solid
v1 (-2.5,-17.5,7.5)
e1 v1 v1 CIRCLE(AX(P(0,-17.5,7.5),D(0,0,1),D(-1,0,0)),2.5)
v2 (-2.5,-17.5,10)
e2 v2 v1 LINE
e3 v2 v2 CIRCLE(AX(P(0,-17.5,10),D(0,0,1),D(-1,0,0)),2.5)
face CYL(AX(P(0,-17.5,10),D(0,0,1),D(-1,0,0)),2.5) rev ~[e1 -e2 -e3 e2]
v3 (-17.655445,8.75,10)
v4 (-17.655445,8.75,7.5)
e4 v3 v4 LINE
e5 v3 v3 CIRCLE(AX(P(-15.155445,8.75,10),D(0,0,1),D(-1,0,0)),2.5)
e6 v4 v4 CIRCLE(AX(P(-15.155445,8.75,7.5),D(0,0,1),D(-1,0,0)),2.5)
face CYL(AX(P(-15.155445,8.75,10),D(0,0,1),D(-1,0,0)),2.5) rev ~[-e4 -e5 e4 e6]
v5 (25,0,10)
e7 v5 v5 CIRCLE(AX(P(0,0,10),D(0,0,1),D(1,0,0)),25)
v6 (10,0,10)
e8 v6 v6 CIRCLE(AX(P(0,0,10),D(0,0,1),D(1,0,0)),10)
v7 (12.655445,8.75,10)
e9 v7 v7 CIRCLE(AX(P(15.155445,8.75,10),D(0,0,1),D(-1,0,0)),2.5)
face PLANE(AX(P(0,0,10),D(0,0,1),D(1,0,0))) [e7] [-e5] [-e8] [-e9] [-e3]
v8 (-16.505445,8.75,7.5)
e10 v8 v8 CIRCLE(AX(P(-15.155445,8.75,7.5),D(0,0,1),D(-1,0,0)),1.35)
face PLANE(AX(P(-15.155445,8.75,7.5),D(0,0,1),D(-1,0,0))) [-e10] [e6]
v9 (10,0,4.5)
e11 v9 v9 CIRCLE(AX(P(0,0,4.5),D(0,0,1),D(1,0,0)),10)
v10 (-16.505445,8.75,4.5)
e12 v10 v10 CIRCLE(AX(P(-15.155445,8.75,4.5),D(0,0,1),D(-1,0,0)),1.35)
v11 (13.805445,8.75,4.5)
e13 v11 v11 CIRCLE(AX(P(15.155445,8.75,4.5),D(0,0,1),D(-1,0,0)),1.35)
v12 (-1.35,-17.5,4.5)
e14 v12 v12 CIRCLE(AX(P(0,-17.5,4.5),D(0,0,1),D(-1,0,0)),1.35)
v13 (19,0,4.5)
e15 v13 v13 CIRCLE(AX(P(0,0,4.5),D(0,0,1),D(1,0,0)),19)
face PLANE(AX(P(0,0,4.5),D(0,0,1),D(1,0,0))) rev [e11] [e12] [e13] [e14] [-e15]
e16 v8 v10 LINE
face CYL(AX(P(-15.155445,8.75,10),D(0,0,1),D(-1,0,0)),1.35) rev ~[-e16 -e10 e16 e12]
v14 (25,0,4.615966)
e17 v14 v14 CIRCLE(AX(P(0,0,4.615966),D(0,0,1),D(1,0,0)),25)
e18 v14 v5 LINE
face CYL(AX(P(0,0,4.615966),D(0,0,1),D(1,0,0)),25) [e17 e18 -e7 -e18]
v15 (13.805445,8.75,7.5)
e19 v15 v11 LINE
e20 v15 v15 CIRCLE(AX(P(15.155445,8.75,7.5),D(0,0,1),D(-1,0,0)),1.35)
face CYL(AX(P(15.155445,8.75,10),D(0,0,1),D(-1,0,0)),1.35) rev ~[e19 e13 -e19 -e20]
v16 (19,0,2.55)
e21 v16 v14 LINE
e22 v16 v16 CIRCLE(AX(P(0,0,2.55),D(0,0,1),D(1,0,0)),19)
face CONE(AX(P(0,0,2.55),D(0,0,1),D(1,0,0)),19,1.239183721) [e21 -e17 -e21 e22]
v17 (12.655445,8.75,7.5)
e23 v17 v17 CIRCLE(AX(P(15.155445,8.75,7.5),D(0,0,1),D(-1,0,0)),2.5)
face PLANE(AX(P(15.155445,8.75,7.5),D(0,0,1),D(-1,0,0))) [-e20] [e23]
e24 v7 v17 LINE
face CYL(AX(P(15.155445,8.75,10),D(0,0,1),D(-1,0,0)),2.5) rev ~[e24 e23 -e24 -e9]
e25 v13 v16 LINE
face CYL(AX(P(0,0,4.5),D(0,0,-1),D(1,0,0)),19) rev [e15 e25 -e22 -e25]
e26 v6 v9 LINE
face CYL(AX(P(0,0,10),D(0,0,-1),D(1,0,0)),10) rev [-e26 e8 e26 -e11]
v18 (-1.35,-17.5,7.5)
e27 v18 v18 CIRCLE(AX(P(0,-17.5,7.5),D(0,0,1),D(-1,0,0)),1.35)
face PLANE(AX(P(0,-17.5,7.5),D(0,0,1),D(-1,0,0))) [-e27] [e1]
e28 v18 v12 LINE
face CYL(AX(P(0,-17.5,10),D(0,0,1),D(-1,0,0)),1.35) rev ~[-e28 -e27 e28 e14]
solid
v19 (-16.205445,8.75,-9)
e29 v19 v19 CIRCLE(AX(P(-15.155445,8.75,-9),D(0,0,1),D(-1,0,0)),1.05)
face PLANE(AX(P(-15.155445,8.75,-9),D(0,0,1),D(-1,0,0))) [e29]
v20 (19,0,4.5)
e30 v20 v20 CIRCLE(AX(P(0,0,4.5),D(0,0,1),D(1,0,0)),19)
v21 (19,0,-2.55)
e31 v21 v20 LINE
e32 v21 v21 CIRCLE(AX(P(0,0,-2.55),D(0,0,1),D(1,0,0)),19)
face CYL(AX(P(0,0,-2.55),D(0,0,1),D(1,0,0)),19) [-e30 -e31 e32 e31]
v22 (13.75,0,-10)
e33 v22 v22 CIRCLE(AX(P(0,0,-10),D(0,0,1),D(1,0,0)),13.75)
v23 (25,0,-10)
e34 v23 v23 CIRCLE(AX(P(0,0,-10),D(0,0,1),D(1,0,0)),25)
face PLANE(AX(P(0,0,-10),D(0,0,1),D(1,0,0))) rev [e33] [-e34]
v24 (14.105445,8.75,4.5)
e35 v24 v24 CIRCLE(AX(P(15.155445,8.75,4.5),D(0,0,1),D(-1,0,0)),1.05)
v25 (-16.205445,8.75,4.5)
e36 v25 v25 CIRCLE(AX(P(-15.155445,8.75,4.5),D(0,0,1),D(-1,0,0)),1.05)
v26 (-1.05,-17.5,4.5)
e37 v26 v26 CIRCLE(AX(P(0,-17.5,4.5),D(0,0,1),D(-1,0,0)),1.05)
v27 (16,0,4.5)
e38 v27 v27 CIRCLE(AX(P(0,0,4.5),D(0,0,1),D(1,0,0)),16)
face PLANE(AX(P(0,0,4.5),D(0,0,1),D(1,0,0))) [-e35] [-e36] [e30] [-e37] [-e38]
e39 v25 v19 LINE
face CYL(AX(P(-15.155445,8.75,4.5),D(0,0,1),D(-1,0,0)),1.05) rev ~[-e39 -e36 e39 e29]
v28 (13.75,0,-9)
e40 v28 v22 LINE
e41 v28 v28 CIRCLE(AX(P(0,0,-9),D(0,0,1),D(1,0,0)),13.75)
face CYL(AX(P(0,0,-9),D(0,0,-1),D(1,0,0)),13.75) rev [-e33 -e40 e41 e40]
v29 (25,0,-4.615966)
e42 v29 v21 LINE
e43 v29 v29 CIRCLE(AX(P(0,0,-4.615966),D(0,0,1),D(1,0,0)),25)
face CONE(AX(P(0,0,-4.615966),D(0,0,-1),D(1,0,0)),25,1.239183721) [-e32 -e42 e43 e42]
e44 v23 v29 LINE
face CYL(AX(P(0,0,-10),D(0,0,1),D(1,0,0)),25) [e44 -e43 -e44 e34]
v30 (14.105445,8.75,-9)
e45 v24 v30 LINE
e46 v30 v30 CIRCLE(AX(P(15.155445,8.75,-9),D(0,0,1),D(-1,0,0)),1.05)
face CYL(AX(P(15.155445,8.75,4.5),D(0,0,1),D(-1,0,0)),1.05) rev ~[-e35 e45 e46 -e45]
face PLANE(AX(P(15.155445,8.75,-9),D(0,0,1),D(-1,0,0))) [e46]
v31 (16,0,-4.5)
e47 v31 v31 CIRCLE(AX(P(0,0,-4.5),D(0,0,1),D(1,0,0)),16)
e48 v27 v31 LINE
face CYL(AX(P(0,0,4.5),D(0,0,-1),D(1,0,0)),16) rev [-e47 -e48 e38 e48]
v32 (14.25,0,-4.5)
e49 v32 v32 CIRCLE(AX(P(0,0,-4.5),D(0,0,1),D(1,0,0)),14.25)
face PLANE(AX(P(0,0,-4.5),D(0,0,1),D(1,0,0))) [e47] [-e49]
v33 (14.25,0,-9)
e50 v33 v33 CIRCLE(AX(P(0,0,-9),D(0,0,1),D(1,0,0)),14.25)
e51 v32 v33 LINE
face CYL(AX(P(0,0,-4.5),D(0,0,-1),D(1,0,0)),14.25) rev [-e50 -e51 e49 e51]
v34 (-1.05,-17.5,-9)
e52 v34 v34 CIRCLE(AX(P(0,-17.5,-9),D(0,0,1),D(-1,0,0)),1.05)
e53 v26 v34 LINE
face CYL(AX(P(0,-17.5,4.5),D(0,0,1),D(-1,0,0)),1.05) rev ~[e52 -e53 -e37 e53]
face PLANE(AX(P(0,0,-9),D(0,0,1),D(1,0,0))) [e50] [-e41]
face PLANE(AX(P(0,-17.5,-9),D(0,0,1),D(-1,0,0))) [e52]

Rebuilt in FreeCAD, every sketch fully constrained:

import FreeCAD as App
import Part
import Sketcher
from FreeCAD import Vector
Q = App.Units.Quantity


def add_polygon(sketch, points):
    """Adds a closed chain of lines whose ends are joined by coincident constraints."""
    first, n = sketch.GeometryCount, len(points)
    for a, b in zip(points, points[1:] + points[:1]):
        sketch.addGeometry(Part.LineSegment(App.Vector(*a, 0), App.Vector(*b, 0)), False)
    for i in range(n):
        sketch.addConstraint(Sketcher.Constraint("Coincident", first + i, 2, first + (i + 1) % n, 1))

doc = App.newDocument("Part")
body = doc.addObject("PartDesign::Body", "Body")

sketch1 = body.newObject("Sketcher::SketchObject", "Sketch")
sketch1.AttachmentSupport = (doc.getObject("XZ_Plane"), [""])
sketch1.MapMode = "FlatFace"
add_polygon(sketch1, [(13.75, -10), (25, -10), (25, -4.615966), (19, -2.55), (19, 4.5), (16, 4.5), (16, -4.5), (14.25, -4.5), (14.25, -9), (13.75, -9)])
sketch1.addConstraint([
    Sketcher.Constraint("Horizontal", 0),
    Sketcher.Constraint("Vertical", 1),
    Sketcher.Constraint("Vertical", 3),
    Sketcher.Constraint("Horizontal", 4),
    Sketcher.Constraint("Vertical", 5),
    Sketcher.Constraint("Horizontal", 6),
    Sketcher.Constraint("Vertical", 7),
    Sketcher.Constraint("Horizontal", 8),
    Sketcher.Constraint("Vertical", 9),
    Sketcher.Constraint("DistanceX", 4, 2, 4, 1, Q("3 mm")),
    Sketcher.Constraint("DistanceY", 5, 2, 5, 1, Q("9 mm")),
    Sketcher.Constraint("DistanceY", 9, 2, 9, 1, Q("1 mm")),
    Sketcher.Constraint("Angle", 2, Q("160.999997 deg")),
    Sketcher.Constraint("DistanceX", 8, 2, 8, 1, Q("0.5 mm")),
    Sketcher.Constraint("DistanceY", 7, 2, 7, 1, Q("4.5 mm")),
    Sketcher.Constraint("DistanceX", -1, 1, 0, 2, Q("25 mm")),
    Sketcher.Constraint("DistanceY", 0, 2, -1, 1, Q("10 mm")),
    Sketcher.Constraint("DistanceX", -1, 1, 2, 2, Q("19 mm")),
    Sketcher.Constraint("DistanceX", 0, 1, 0, 2, Q("11.25 mm")),
    Sketcher.Constraint("DistanceY", 3, 1, 3, 2, Q("7.05 mm")),
])
revolution = body.newObject("PartDesign::Revolution", "Revolution")
revolution.Profile = sketch1
revolution.ReferenceAxis = (sketch1, ["V_Axis"])
revolution.Angle = 360

sketch2 = body.newObject("Sketcher::SketchObject", "Sketch001")
sketch2.AttachmentSupport = (doc.getObject("XY_Plane"), [""])
sketch2.MapMode = "FlatFace"
sketch2.AttachmentOffset = App.Placement(Vector(0, 0, 4.5), App.Rotation())
sketch2.addGeometry([
    Part.Circle(Vector(0, -17.5, 0), Vector(0, 0, 1), 1.05),
    Part.Circle(Vector(15.155445, 8.75, 0), Vector(0, 0, 1), 1.05),
    Part.Circle(Vector(-15.155445, 8.75, 0), Vector(0, 0, 1), 1.05),
], False)
sketch2.addConstraint([
    Sketcher.Constraint("Equal", 0, 1),
    Sketcher.Constraint("Equal", 1, 2),
    Sketcher.Constraint("Symmetric", 1, 3, 2, 3, -2),
    Sketcher.Constraint("PointOnObject", 0, 3, -2),
    Sketcher.Constraint("Diameter", 0, Q("2.1 mm")),
    Sketcher.Constraint("DistanceY", 0, 3, -1, 1, Q("17.5 mm")),
    Sketcher.Constraint("DistanceY", -1, 1, 1, 3, Q("8.75 mm")),
    Sketcher.Constraint("DistanceX", 2, 3, 1, 3, Q("30.31089 mm")),
])
pocket1 = body.newObject("PartDesign::Pocket", "Pocket")
pocket1.Profile = sketch2
pocket1.Length = 13.5
body2 = doc.addObject("PartDesign::Body", "Body001")

sketch3 = body2.newObject("Sketcher::SketchObject", "Sketch002")
sketch3.AttachmentSupport = (doc.getObject("XZ_Plane001"), [""])
sketch3.MapMode = "FlatFace"
add_polygon(sketch3, [(19, 2.55), (25, 4.615966), (25, 10), (10, 10), (10, 4.5), (19, 4.5)])
sketch3.addConstraint([
    Sketcher.Constraint("Vertical", 1),
    Sketcher.Constraint("Horizontal", 2),
    Sketcher.Constraint("Vertical", 3),
    Sketcher.Constraint("Horizontal", 4),
    Sketcher.Constraint("Vertical", 5),
    Sketcher.Constraint("DistanceX", 2, 2, 2, 1, Q("15 mm")),
    Sketcher.Constraint("DistanceX", 4, 1, 4, 2, Q("9 mm")),
    Sketcher.Constraint("Angle", 0, Q("19.000003 deg")),
    Sketcher.Constraint("DistanceY", 3, 2, 3, 1, Q("5.5 mm")),
    Sketcher.Constraint("DistanceX", -1, 1, 0, 2, Q("25 mm")),
    Sketcher.Constraint("DistanceY", -1, 1, 1, 2, Q("10 mm")),
    Sketcher.Constraint("DistanceY", 5, 2, 5, 1, Q("1.95 mm")),
])
revolution2 = body2.newObject("PartDesign::Revolution", "Revolution001")
revolution2.Profile = sketch3
revolution2.ReferenceAxis = (sketch3, ["V_Axis"])
revolution2.Angle = 360

sketch4 = body2.newObject("Sketcher::SketchObject", "Sketch003")
sketch4.AttachmentSupport = (doc.getObject("XY_Plane001"), [""])
sketch4.MapMode = "FlatFace"
sketch4.AttachmentOffset = App.Placement(Vector(0, 0, 10), App.Rotation())
sketch4.addGeometry([
    Part.Circle(Vector(0, -17.5, 0), Vector(0, 0, 1), 1.35),
    Part.Circle(Vector(15.155445, 8.75, 0), Vector(0, 0, 1), 1.35),
    Part.Circle(Vector(-15.155445, 8.75, 0), Vector(0, 0, 1), 1.35),
], False)
sketch4.addConstraint([
    Sketcher.Constraint("Equal", 0, 1),
    Sketcher.Constraint("Equal", 1, 2),
    Sketcher.Constraint("Symmetric", 1, 3, 2, 3, -2),
    Sketcher.Constraint("PointOnObject", 0, 3, -2),
    Sketcher.Constraint("Diameter", 0, Q("2.7 mm")),
    Sketcher.Constraint("DistanceY", 0, 3, -1, 1, Q("17.5 mm")),
    Sketcher.Constraint("DistanceY", -1, 1, 1, 3, Q("8.75 mm")),
    Sketcher.Constraint("DistanceX", 2, 3, 1, 3, Q("30.31089 mm")),
])
pocket2 = body2.newObject("PartDesign::Pocket", "Pocket001")
pocket2.Profile = sketch4
pocket2.Type = "ThroughAll"

sketch5 = body2.newObject("Sketcher::SketchObject", "Sketch004")
sketch5.AttachmentSupport = (doc.getObject("XY_Plane001"), [""])
sketch5.MapMode = "FlatFace"
sketch5.AttachmentOffset = App.Placement(Vector(0, 0, 10), App.Rotation())
sketch5.addGeometry([
    Part.Circle(Vector(0, -17.5, 0), Vector(0, 0, 1), 2.5),
    Part.Circle(Vector(15.155445, 8.75, 0), Vector(0, 0, 1), 2.5),
    Part.Circle(Vector(-15.155445, 8.75, 0), Vector(0, 0, 1), 2.5),
], False)
sketch5.addConstraint([
    Sketcher.Constraint("Equal", 0, 1),
    Sketcher.Constraint("Equal", 1, 2),
    Sketcher.Constraint("Symmetric", 1, 3, 2, 3, -2),
    Sketcher.Constraint("PointOnObject", 0, 3, -2),
    Sketcher.Constraint("Diameter", 0, Q("5 mm")),
    Sketcher.Constraint("DistanceY", 0, 3, -1, 1, Q("17.5 mm")),
    Sketcher.Constraint("DistanceY", -1, 1, 1, 3, Q("8.75 mm")),
    Sketcher.Constraint("DistanceX", 2, 3, 1, 3, Q("30.31089 mm")),
])
pocket3 = body2.newObject("PartDesign::Pocket", "Pocket002")
pocket3.Profile = sketch5
pocket3.Length = 2.5

doc.recompute()
